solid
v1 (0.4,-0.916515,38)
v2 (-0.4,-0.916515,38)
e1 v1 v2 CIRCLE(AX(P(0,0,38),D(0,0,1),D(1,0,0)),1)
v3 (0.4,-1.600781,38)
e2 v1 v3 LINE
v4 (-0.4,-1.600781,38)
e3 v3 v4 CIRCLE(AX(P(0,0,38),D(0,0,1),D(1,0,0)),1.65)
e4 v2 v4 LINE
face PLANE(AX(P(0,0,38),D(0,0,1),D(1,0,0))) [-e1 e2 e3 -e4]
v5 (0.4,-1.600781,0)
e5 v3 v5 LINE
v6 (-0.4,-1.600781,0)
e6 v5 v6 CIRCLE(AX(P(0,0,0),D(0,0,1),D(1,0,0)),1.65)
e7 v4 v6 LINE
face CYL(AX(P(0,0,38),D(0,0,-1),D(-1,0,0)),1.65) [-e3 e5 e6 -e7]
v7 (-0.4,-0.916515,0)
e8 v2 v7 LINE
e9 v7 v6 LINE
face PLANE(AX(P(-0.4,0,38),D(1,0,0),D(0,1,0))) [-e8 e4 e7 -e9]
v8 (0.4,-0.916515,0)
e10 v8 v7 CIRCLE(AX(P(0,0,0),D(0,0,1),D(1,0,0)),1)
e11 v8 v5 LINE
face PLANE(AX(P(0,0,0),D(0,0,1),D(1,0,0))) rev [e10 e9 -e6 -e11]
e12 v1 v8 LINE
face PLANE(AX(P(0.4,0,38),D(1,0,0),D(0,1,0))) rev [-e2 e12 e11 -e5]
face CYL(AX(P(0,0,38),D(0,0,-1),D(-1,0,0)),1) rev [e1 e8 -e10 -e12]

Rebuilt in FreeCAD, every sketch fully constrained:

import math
import FreeCAD as App
import Part
import Sketcher

V = App.Vector
Q = App.Units.Quantity

doc = App.newDocument("Part")
body = doc.addObject("PartDesign::Body", "Body")

sketch1 = body.newObject("Sketcher::SketchObject", "Sketch")
sketch1.AttachmentSupport = (doc.getObject("XY_Plane"), [""])
sketch1.MapMode = "FlatFace"
sketch1.addGeometry(Part.LineSegment(V(-0.4, -1.600781, 0), V(-0.4, -0.916515, 0)), False)
sketch1.addGeometry(Part.ArcOfCircle(Part.Circle(V(0, 0, 0), V(0, 0, 1), 1), math.radians(0), math.radians(246.421822)), False)
sketch1.addGeometry(Part.ArcOfCircle(Part.Circle(V(0, 0, 0), V(0, 0, 1), 1), math.radians(-66.421822), math.radians(0)), False)
sketch1.addGeometry(Part.LineSegment(V(0.4, -0.916515, 0), V(0.4, -1.600781, 0)), False)
sketch1.addGeometry(Part.ArcOfCircle(Part.Circle(V(0, 0, 0), V(0, 0, 1), 1.65), math.radians(-75.970335), math.radians(0)), False)
sketch1.addGeometry(Part.ArcOfCircle(Part.Circle(V(0, 0, 0), V(0, 0, 1), 1.65), math.radians(0), math.radians(255.970335)), False)
sketch1.addConstraint(Sketcher.Constraint("Coincident", 0, 2, 1, 2))
sketch1.addConstraint(Sketcher.Constraint("Tangent", 1, 1, 2, 2))
sketch1.addConstraint(Sketcher.Constraint("Coincident", 2, 1, 3, 1))
sketch1.addConstraint(Sketcher.Constraint("Coincident", 3, 2, 4, 1))
sketch1.addConstraint(Sketcher.Constraint("Tangent", 4, 2, 5, 1))
sketch1.addConstraint(Sketcher.Constraint("Coincident", 5, 2, 0, 1))
sketch1.addConstraint(Sketcher.Constraint("Vertical", 0))
sketch1.addConstraint(Sketcher.Constraint("Vertical", 3))
sketch1.addConstraint(Sketcher.Constraint("Coincident", 1, 3, -1, 1))
sketch1.addConstraint(Sketcher.Constraint("Coincident", 4, 3, -1, 1))
sketch1.addConstraint(Sketcher.Constraint("Equal", 1, 2))
sketch1.addConstraint(Sketcher.Constraint("Equal", 4, 5))
sketch1.addConstraint(Sketcher.Constraint("PointOnObject", 1, 1, -1))
sketch1.addConstraint(Sketcher.Constraint("PointOnObject", 4, 2, -1))
sketch1.addConstraint(Sketcher.Constraint("Horizontal", 0, 2, 2, 1))
sketch1.addConstraint(Sketcher.Constraint("Radius", 1, Q("1 mm")))
sketch1.addConstraint(Sketcher.Constraint("Radius", 4, Q("1.65 mm")))
sketch1.addConstraint(Sketcher.Constraint("DistanceX", 0, 2, -1, 1, Q("0.4 mm")))
pad1 = body.newObject("PartDesign::Pad", "Pad")
pad1.Profile = sketch1
pad1.Length = 38

doc.recompute()
